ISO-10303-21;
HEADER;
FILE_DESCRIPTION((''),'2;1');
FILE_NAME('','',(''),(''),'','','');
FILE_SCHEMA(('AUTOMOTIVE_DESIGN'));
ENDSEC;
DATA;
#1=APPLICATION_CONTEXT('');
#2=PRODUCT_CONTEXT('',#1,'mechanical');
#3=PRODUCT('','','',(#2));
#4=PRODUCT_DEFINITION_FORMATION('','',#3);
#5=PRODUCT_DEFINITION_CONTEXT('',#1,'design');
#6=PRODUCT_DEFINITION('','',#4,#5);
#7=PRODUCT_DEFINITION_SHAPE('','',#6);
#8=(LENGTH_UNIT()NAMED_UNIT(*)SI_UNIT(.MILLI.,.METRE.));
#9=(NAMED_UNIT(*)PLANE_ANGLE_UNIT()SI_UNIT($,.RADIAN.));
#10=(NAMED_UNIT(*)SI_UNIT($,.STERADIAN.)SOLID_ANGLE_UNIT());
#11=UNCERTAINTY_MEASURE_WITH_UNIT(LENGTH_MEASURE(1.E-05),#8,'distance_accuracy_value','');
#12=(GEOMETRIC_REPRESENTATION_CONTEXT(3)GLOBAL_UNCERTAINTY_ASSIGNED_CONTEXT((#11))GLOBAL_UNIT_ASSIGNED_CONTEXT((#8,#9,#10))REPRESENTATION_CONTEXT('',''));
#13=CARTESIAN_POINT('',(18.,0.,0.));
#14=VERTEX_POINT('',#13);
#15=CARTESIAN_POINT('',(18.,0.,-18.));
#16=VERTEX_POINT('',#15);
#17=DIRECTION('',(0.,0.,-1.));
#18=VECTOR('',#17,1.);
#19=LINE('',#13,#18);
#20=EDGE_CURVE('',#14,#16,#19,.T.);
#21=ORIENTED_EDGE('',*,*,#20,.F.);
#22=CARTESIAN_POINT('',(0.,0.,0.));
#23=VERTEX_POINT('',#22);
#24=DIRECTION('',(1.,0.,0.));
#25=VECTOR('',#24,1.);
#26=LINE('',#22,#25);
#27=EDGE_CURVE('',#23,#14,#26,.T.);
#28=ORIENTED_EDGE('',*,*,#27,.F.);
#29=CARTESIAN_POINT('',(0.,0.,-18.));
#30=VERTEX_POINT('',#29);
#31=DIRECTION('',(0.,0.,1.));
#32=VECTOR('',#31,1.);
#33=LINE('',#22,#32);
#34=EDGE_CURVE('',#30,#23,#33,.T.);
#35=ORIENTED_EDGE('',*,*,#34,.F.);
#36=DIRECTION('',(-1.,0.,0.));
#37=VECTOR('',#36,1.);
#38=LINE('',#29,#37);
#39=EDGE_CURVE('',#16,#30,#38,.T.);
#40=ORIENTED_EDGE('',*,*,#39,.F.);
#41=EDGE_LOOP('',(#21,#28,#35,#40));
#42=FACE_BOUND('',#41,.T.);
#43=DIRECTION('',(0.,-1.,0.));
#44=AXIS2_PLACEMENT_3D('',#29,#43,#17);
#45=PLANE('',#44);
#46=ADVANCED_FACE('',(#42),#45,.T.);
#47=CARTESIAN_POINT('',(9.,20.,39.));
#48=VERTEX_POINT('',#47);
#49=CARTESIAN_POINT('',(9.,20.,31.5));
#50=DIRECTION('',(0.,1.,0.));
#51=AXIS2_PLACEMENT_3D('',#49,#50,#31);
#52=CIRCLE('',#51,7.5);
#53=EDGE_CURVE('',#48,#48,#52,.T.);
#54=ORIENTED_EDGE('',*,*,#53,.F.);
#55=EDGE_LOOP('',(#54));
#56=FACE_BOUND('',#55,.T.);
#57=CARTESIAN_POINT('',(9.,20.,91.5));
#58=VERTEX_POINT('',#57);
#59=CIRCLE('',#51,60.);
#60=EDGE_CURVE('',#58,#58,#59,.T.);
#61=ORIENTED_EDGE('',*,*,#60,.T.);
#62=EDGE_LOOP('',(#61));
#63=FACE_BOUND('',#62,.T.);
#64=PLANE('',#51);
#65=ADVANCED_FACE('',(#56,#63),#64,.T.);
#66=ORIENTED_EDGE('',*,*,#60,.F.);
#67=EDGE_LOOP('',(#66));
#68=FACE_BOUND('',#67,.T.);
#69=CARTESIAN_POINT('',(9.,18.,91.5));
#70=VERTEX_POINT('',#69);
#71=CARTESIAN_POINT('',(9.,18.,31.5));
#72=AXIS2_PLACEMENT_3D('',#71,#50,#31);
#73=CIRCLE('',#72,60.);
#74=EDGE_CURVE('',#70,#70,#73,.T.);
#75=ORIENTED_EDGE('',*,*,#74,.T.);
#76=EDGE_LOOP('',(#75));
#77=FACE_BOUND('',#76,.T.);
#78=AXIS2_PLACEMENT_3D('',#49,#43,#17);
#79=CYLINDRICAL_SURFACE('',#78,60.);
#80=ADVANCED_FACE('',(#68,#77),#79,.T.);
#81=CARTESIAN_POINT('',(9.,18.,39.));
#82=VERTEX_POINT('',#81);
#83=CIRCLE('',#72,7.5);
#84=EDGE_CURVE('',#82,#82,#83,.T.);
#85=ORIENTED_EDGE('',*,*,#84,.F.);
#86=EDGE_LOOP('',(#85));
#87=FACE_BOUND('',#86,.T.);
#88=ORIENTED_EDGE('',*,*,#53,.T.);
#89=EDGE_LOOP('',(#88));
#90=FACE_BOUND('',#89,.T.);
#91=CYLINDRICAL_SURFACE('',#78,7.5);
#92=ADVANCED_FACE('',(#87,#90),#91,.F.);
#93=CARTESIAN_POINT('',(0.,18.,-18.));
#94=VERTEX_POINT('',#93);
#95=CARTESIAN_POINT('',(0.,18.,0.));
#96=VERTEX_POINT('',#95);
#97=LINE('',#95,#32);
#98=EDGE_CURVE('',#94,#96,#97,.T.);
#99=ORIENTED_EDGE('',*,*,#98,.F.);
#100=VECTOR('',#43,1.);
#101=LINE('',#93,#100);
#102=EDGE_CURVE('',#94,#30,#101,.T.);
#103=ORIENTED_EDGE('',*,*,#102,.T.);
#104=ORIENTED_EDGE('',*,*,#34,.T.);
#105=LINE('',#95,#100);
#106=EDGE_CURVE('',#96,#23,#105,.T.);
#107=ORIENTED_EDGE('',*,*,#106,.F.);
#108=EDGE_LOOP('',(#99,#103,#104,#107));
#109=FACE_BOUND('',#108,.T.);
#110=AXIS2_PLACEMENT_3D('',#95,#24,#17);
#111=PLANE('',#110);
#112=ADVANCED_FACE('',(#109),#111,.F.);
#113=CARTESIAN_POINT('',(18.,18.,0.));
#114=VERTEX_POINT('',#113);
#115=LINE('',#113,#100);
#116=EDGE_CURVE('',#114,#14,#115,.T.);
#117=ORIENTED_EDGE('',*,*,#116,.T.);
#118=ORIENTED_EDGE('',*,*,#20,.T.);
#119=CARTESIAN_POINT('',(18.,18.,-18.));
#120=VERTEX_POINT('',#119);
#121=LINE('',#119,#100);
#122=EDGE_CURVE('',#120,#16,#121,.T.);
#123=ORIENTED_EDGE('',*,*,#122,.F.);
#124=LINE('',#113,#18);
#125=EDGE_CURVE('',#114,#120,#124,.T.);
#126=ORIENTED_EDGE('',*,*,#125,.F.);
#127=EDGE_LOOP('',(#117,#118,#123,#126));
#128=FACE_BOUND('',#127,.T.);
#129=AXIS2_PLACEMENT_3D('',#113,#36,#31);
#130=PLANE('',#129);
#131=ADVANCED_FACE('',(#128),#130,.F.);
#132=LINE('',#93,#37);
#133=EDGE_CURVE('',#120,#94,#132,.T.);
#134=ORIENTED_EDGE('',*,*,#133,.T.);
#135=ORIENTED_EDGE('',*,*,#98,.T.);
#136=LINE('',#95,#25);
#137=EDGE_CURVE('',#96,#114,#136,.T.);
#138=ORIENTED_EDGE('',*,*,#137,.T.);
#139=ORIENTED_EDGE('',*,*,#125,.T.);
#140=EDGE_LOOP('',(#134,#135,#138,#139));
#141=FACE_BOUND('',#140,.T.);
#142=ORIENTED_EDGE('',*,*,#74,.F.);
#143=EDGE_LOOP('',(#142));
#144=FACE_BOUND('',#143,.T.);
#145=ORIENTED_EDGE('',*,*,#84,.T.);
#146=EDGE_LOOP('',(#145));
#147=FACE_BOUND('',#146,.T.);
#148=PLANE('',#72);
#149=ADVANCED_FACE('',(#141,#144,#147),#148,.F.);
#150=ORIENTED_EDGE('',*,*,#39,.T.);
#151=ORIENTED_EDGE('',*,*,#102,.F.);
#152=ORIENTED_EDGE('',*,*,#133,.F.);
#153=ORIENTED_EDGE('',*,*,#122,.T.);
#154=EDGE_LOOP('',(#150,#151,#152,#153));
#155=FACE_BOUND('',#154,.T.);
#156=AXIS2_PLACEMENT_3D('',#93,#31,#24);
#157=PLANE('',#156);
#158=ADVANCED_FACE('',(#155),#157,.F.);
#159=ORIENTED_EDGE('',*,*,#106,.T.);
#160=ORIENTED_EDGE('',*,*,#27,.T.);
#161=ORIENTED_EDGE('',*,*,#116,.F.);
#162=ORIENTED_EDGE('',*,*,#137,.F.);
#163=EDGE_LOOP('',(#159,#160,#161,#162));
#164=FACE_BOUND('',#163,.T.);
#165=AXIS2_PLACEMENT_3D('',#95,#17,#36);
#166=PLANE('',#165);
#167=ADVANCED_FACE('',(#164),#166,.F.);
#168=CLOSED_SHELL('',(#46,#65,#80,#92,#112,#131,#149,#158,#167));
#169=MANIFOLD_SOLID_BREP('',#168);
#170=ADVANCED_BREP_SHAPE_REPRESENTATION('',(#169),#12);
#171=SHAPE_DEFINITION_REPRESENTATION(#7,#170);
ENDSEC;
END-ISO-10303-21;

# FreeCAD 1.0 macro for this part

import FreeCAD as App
import Part
import Sketcher
from FreeCAD import Vector
Q = App.Units.Quantity

doc = App.newDocument("Part")
body = doc.addObject("PartDesign::Body", "Body")

# Sketch on XZ plane
sketch1 = body.newObject("Sketcher::SketchObject", "Sketch")
sketch1.AttachmentSupport = (doc.getObject("XZ_Plane"), [""])
sketch1.MapMode = "FlatFace"
sketch1.addGeometry([
    Part.LineSegment(Vector(0, -18, 0), Vector(0, 0, 0)),
    Part.LineSegment(Vector(0, 0, 0), Vector(18, 0, 0)),
    Part.LineSegment(Vector(18, 0, 0), Vector(18, -18, 0)),
    Part.LineSegment(Vector(18, -18, 0), Vector(0, -18, 0)),
], False)
sketch1.addConstraint([
    Sketcher.Constraint("Coincident", 0, 2, 1, 1),
    Sketcher.Constraint("Coincident", 1, 2, 2, 1),
    Sketcher.Constraint("Coincident", 2, 2, 3, 1),
    Sketcher.Constraint("Coincident", 3, 2, 0, 1),
    Sketcher.Constraint("Vertical", 0),
    Sketcher.Constraint("Horizontal", 1),
    Sketcher.Constraint("Vertical", 2),
    Sketcher.Constraint("Horizontal", 3),
    Sketcher.Constraint("Coincident", 0, 2, -1, 1),
    Sketcher.Constraint("Equal", 3, 0),
    Sketcher.Constraint("DistanceX", 1, 1, 1, 2, Q("18 mm")),
])
pad1 = body.newObject("PartDesign::Pad", "Pad")
pad1.Profile = sketch1
pad1.Length = 18
pad1.Reversed = True

# Sketch on XZ plane
sketch2 = body.newObject("Sketcher::SketchObject", "Sketch001")
sketch2.AttachmentSupport = (doc.getObject("XZ_Plane"), [""])
sketch2.MapMode = "FlatFace"
sketch2.AttachmentOffset = App.Placement(Vector(0, 0, -18), App.Rotation())
sketch2.addGeometry([
    Part.Circle(Vector(9, 32, 0), Vector(0, 0, 1), 60),
    Part.Circle(Vector(9, 32, 0), Vector(0, 0, 1), 8),
], False)
sketch2.addConstraint([
    Sketcher.Constraint("Coincident", 1, 3, 0, 3),
    Sketcher.Constraint("Diameter", 0, Q("120 mm")),
    Sketcher.Constraint("Diameter", 1, Q("15 mm")),
    Sketcher.Constraint("DistanceX", -1, 1, 0, 3, Q("9 mm")),
    Sketcher.Constraint("DistanceY", -1, 1, 0, 3, Q("31.5 mm")),
])
pad2 = body.newObject("PartDesign::Pad", "Pad001")
pad2.Profile = sketch2
pad2.Length = 2
pad2.Reversed = True

doc.recompute()
